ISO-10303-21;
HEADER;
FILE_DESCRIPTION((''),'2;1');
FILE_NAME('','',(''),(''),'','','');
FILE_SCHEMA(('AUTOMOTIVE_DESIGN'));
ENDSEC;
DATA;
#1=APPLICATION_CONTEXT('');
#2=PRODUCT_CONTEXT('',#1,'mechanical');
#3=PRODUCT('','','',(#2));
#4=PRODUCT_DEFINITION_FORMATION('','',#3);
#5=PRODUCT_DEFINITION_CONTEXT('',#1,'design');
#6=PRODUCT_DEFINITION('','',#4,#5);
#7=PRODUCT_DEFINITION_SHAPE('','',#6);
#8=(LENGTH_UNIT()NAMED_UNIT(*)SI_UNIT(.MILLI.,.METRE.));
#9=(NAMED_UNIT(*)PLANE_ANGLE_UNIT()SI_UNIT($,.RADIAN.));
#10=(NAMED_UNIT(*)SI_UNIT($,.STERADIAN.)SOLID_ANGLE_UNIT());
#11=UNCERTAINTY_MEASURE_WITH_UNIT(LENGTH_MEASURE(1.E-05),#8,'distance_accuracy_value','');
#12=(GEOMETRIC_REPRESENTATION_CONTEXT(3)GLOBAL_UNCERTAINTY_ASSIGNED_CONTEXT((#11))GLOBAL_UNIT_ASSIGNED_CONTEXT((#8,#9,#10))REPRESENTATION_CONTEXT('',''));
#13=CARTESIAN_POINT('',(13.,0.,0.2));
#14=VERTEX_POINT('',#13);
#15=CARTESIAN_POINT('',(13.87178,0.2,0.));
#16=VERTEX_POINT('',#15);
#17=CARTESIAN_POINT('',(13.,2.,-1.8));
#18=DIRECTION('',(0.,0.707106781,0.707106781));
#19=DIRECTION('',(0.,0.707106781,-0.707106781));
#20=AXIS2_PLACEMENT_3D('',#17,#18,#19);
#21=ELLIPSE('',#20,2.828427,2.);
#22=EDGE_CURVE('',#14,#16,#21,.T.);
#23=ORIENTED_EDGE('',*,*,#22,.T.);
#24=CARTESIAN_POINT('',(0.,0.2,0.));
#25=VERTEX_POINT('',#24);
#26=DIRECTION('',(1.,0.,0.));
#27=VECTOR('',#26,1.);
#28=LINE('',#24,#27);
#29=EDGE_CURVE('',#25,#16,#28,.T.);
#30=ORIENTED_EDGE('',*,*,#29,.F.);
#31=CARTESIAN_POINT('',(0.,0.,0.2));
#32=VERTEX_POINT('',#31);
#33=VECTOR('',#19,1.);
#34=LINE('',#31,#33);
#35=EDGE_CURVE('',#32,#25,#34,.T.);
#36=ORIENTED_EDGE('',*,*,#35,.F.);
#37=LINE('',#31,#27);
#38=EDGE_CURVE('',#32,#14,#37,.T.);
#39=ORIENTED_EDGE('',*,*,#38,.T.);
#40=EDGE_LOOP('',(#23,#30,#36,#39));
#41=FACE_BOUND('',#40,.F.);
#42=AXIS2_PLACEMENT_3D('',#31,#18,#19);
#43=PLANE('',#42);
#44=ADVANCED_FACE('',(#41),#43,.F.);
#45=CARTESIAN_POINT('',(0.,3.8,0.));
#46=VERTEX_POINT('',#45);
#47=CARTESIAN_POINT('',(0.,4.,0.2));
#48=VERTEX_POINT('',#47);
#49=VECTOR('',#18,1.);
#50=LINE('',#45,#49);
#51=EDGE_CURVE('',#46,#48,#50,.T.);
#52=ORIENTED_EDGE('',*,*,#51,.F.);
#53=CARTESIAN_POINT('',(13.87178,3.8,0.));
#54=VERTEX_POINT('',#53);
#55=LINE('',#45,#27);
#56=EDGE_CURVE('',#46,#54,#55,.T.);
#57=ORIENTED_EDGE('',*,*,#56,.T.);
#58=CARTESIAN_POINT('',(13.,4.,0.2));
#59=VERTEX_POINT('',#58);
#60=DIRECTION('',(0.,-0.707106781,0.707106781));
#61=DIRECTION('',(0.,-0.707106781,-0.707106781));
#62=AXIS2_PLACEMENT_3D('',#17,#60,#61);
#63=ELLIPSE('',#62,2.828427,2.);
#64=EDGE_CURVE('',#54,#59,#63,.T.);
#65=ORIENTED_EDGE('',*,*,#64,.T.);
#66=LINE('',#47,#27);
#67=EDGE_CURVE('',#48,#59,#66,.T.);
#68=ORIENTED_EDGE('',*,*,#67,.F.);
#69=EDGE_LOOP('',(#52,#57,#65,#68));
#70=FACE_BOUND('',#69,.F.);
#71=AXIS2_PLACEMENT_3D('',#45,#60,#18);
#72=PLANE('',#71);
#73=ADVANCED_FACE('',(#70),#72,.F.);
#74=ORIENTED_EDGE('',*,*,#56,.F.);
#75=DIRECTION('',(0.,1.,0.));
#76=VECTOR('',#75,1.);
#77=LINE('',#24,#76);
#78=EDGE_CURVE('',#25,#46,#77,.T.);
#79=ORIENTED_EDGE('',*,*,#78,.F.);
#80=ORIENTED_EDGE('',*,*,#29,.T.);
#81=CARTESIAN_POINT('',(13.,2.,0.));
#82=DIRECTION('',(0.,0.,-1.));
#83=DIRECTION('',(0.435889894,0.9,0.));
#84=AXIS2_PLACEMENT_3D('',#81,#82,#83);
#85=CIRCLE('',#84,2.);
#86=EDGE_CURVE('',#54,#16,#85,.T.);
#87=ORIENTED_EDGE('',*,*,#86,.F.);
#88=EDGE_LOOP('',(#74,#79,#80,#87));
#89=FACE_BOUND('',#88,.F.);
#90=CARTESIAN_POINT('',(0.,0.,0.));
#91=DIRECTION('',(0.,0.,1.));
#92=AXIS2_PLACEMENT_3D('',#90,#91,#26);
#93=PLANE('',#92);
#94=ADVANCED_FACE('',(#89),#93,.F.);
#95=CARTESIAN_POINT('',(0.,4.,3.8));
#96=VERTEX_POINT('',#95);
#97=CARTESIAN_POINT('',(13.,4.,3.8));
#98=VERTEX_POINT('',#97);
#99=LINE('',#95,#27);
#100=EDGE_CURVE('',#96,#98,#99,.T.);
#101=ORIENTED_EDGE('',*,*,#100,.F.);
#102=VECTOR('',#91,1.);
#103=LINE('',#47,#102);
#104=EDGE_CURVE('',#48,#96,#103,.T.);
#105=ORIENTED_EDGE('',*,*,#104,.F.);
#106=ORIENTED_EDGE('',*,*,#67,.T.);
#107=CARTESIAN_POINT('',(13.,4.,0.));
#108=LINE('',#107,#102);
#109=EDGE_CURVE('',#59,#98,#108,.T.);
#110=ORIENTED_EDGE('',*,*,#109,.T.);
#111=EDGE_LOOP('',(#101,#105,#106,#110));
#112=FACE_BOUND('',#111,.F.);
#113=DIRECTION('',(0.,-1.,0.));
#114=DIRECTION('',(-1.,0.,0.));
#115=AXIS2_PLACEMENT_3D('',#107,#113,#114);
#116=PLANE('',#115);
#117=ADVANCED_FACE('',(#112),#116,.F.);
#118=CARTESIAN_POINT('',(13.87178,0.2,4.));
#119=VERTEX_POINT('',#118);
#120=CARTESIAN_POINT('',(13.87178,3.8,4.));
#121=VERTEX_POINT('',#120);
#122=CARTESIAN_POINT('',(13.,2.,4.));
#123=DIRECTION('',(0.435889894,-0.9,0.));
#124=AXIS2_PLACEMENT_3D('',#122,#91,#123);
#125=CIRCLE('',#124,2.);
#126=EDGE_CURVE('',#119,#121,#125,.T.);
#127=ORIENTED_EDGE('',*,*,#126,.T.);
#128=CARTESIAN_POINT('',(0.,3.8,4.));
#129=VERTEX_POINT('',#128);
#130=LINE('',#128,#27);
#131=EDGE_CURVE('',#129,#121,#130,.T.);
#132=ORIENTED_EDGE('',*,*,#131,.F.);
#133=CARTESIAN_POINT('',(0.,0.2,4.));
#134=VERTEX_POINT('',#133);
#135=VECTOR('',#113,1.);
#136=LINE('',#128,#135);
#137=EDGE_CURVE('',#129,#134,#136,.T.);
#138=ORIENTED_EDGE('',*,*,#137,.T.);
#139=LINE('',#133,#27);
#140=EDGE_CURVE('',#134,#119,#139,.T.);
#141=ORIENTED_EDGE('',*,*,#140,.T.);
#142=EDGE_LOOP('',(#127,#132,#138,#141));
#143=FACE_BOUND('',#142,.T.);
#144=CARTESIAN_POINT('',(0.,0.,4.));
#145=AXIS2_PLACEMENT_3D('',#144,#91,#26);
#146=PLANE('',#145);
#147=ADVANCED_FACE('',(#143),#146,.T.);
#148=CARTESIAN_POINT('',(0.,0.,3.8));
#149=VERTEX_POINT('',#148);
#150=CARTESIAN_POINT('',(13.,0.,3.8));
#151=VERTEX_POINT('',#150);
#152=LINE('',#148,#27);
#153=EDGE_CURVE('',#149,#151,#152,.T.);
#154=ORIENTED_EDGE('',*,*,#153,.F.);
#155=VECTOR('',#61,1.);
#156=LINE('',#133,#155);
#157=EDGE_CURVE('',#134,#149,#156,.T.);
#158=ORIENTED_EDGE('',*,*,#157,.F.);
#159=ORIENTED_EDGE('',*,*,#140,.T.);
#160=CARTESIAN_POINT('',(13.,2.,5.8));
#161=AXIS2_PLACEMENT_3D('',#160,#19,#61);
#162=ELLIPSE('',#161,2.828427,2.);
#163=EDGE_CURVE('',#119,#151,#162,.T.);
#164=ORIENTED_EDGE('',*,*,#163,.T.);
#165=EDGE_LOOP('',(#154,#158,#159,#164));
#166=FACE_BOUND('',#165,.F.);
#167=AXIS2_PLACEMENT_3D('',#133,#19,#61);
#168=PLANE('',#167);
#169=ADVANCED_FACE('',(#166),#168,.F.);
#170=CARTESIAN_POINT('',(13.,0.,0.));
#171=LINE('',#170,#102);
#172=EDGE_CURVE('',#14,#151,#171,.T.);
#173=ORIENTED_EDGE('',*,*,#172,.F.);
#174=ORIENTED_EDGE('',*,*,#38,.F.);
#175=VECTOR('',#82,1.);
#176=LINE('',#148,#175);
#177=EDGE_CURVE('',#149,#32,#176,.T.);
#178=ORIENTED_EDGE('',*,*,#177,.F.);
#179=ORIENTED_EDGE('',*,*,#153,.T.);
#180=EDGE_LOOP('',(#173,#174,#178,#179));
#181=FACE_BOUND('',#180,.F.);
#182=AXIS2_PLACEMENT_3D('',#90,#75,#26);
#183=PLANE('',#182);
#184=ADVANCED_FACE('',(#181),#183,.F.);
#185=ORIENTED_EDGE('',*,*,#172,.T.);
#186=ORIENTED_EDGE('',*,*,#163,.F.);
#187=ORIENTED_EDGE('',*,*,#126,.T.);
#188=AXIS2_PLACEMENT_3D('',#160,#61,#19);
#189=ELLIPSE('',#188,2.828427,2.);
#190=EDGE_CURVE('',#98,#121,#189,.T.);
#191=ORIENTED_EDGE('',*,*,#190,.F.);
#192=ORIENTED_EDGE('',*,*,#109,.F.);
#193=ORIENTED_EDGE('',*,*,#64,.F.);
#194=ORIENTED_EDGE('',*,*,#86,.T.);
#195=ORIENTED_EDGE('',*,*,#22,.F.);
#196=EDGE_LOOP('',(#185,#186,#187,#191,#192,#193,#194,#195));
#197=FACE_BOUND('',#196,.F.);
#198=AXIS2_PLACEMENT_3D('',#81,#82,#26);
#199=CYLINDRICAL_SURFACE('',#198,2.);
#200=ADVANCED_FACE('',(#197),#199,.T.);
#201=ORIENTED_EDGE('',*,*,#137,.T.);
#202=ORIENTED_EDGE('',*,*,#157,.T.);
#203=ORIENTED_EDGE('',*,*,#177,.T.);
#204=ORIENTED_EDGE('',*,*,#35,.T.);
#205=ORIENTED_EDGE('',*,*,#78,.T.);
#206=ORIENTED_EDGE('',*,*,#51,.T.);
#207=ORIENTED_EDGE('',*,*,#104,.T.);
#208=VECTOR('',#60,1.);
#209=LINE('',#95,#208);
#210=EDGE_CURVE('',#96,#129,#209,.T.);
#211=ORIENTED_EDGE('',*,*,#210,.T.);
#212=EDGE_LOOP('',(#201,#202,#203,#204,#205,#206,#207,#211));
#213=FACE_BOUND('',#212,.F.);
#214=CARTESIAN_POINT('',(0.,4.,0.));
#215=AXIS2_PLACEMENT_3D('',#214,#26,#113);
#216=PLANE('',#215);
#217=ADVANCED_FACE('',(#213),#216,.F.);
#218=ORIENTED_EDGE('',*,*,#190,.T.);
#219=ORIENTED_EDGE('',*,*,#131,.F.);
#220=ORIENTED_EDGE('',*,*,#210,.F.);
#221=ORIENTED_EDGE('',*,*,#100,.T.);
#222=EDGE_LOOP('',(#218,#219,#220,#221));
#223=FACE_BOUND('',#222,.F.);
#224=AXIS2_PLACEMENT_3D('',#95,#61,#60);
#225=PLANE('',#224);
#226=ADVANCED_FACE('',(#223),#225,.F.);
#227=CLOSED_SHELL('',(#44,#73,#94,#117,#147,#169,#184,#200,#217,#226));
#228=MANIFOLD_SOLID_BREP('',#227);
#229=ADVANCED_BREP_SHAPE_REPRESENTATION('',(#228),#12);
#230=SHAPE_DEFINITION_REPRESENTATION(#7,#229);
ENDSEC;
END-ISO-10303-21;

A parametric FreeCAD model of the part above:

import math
import FreeCAD as App
import Part
import Sketcher
from FreeCAD import Vector
Q = App.Units.Quantity

doc = App.newDocument("Part")
body = doc.addObject("PartDesign::Body", "Body")

sketch1 = body.newObject("Sketcher::SketchObject", "Sketch")
sketch1.AttachmentSupport = (doc.getObject("XY_Plane"), [""])
sketch1.MapMode = "FlatFace"
sketch1.addGeometry([
    Part.LineSegment(Vector(0, 4, 0), Vector(0, 0, 0)),
    Part.LineSegment(Vector(0, 0, 0), Vector(13, 0, 0)),
    Part.ArcOfCircle(Part.Circle(Vector(13, 2, 0), Vector(0, 0, 1), 2), math.radians(-90), math.radians(90)),
    Part.LineSegment(Vector(13, 4, 0), Vector(0, 4, 0)),
], False)
sketch1.addConstraint([
    Sketcher.Constraint("Coincident", 0, 2, 1, 1),
    Sketcher.Constraint("Tangent", 1, 2, 2, 1),
    Sketcher.Constraint("Tangent", 2, 2, 3, 1),
    Sketcher.Constraint("Coincident", 3, 2, 0, 1),
    Sketcher.Constraint("Vertical", 0),
    Sketcher.Constraint("Horizontal", 1),
    Sketcher.Constraint("Horizontal", 3),
    Sketcher.Constraint("Coincident", 0, 2, -1, 1),
    Sketcher.Constraint("Radius", 2, Q("2 mm")),
    Sketcher.Constraint("DistanceX", 1, 1, 1, 2, Q("13 mm")),
])
pad1 = body.newObject("PartDesign::Pad", "Pad")
pad1.Profile = sketch1
pad1.Length = 4

sketch2 = body.newObject("Sketcher::SketchObject", "Sketch001")
sketch2.AttachmentSupport = (doc.getObject("YZ_Plane"), [""])
sketch2.MapMode = "FlatFace"
sketch2.addGeometry([
    Part.LineSegment(Vector(6, -2, 0), Vector(6, 6, 0)),
    Part.LineSegment(Vector(6, 6, 0), Vector(-2, 6, 0)),
    Part.LineSegment(Vector(-2, 6, 0), Vector(-2, -2, 0)),
    Part.LineSegment(Vector(-2, -2, 0), Vector(6, -2, 0)),
    Part.LineSegment(Vector(0, 3.8, 0), Vector(0.2, 4, 0)),
    Part.LineSegment(Vector(0.2, 4, 0), Vector(3.8, 4, 0)),
    Part.LineSegment(Vector(3.8, 4, 0), Vector(4, 3.8, 0)),
    Part.LineSegment(Vector(4, 3.8, 0), Vector(4, 0.2, 0)),
    Part.LineSegment(Vector(4, 0.2, 0), Vector(3.8, 0, 0)),
    Part.LineSegment(Vector(3.8, 0, 0), Vector(0.2, 0, 0)),
    Part.LineSegment(Vector(0.2, 0, 0), Vector(0, 0.2, 0)),
    Part.LineSegment(Vector(0, 0.2, 0), Vector(0, 3.8, 0)),
], False)
sketch2.addConstraint([
    Sketcher.Constraint("Coincident", 0, 2, 1, 1),
    Sketcher.Constraint("Coincident", 1, 2, 2, 1),
    Sketcher.Constraint("Coincident", 2, 2, 3, 1),
    Sketcher.Constraint("Coincident", 3, 2, 0, 1),
    Sketcher.Constraint("Coincident", 4, 2, 5, 1),
    Sketcher.Constraint("Coincident", 5, 2, 6, 1),
    Sketcher.Constraint("Coincident", 6, 2, 7, 1),
    Sketcher.Constraint("Coincident", 7, 2, 8, 1),
    Sketcher.Constraint("Coincident", 8, 2, 9, 1),
    Sketcher.Constraint("Coincident", 9, 2, 10, 1),
    Sketcher.Constraint("Coincident", 10, 2, 11, 1),
    Sketcher.Constraint("Coincident", 11, 2, 4, 1),
    Sketcher.Constraint("Vertical", 0),
    Sketcher.Constraint("Horizontal", 1),
    Sketcher.Constraint("Vertical", 2),
    Sketcher.Constraint("Horizontal", 3),
    Sketcher.Constraint("Horizontal", 5),
    Sketcher.Constraint("Vertical", 7),
    Sketcher.Constraint("Horizontal", 9),
    Sketcher.Constraint("Vertical", 11),
    Sketcher.Constraint("PointOnObject", 8, 2, -1),
    Sketcher.Constraint("PointOnObject", 10, 2, -2),
    Sketcher.Constraint("Perpendicular", 4, 6),
    Sketcher.Constraint("Perpendicular", 6, 8),
    Sketcher.Constraint("Perpendicular", 8, 10),
    Sketcher.Constraint("Horizontal", 7, 2, 10, 2),
    Sketcher.Constraint("Horizontal", 6, 2, 11, 2),
    Sketcher.Constraint("Vertical", 5, 2, 8, 2),
    Sketcher.Constraint("Vertical", 4, 2, 9, 2),
    Sketcher.Constraint("Equal", 3, 0),
    Sketcher.Constraint("Equal", 9, 7),
    Sketcher.Constraint("DistanceX", 1, 2, 1, 1, Q("8 mm")),
    Sketcher.Constraint("DistanceX", 5, 1, 5, 2, Q("3.6 mm")),
    Sketcher.Constraint("DistanceX", -1, 1, 0, 2, Q("6 mm")),
    Sketcher.Constraint("DistanceY", -1, 1, 0, 2, Q("6 mm")),
    Sketcher.Constraint("DistanceY", -1, 1, 4, 2, Q("4 mm")),
])
pocket1 = body.newObject("PartDesign::Pocket", "Pocket")
pocket1.Profile = sketch2
pocket1.Length = 15
pocket1.Reversed = True

doc.recompute()
